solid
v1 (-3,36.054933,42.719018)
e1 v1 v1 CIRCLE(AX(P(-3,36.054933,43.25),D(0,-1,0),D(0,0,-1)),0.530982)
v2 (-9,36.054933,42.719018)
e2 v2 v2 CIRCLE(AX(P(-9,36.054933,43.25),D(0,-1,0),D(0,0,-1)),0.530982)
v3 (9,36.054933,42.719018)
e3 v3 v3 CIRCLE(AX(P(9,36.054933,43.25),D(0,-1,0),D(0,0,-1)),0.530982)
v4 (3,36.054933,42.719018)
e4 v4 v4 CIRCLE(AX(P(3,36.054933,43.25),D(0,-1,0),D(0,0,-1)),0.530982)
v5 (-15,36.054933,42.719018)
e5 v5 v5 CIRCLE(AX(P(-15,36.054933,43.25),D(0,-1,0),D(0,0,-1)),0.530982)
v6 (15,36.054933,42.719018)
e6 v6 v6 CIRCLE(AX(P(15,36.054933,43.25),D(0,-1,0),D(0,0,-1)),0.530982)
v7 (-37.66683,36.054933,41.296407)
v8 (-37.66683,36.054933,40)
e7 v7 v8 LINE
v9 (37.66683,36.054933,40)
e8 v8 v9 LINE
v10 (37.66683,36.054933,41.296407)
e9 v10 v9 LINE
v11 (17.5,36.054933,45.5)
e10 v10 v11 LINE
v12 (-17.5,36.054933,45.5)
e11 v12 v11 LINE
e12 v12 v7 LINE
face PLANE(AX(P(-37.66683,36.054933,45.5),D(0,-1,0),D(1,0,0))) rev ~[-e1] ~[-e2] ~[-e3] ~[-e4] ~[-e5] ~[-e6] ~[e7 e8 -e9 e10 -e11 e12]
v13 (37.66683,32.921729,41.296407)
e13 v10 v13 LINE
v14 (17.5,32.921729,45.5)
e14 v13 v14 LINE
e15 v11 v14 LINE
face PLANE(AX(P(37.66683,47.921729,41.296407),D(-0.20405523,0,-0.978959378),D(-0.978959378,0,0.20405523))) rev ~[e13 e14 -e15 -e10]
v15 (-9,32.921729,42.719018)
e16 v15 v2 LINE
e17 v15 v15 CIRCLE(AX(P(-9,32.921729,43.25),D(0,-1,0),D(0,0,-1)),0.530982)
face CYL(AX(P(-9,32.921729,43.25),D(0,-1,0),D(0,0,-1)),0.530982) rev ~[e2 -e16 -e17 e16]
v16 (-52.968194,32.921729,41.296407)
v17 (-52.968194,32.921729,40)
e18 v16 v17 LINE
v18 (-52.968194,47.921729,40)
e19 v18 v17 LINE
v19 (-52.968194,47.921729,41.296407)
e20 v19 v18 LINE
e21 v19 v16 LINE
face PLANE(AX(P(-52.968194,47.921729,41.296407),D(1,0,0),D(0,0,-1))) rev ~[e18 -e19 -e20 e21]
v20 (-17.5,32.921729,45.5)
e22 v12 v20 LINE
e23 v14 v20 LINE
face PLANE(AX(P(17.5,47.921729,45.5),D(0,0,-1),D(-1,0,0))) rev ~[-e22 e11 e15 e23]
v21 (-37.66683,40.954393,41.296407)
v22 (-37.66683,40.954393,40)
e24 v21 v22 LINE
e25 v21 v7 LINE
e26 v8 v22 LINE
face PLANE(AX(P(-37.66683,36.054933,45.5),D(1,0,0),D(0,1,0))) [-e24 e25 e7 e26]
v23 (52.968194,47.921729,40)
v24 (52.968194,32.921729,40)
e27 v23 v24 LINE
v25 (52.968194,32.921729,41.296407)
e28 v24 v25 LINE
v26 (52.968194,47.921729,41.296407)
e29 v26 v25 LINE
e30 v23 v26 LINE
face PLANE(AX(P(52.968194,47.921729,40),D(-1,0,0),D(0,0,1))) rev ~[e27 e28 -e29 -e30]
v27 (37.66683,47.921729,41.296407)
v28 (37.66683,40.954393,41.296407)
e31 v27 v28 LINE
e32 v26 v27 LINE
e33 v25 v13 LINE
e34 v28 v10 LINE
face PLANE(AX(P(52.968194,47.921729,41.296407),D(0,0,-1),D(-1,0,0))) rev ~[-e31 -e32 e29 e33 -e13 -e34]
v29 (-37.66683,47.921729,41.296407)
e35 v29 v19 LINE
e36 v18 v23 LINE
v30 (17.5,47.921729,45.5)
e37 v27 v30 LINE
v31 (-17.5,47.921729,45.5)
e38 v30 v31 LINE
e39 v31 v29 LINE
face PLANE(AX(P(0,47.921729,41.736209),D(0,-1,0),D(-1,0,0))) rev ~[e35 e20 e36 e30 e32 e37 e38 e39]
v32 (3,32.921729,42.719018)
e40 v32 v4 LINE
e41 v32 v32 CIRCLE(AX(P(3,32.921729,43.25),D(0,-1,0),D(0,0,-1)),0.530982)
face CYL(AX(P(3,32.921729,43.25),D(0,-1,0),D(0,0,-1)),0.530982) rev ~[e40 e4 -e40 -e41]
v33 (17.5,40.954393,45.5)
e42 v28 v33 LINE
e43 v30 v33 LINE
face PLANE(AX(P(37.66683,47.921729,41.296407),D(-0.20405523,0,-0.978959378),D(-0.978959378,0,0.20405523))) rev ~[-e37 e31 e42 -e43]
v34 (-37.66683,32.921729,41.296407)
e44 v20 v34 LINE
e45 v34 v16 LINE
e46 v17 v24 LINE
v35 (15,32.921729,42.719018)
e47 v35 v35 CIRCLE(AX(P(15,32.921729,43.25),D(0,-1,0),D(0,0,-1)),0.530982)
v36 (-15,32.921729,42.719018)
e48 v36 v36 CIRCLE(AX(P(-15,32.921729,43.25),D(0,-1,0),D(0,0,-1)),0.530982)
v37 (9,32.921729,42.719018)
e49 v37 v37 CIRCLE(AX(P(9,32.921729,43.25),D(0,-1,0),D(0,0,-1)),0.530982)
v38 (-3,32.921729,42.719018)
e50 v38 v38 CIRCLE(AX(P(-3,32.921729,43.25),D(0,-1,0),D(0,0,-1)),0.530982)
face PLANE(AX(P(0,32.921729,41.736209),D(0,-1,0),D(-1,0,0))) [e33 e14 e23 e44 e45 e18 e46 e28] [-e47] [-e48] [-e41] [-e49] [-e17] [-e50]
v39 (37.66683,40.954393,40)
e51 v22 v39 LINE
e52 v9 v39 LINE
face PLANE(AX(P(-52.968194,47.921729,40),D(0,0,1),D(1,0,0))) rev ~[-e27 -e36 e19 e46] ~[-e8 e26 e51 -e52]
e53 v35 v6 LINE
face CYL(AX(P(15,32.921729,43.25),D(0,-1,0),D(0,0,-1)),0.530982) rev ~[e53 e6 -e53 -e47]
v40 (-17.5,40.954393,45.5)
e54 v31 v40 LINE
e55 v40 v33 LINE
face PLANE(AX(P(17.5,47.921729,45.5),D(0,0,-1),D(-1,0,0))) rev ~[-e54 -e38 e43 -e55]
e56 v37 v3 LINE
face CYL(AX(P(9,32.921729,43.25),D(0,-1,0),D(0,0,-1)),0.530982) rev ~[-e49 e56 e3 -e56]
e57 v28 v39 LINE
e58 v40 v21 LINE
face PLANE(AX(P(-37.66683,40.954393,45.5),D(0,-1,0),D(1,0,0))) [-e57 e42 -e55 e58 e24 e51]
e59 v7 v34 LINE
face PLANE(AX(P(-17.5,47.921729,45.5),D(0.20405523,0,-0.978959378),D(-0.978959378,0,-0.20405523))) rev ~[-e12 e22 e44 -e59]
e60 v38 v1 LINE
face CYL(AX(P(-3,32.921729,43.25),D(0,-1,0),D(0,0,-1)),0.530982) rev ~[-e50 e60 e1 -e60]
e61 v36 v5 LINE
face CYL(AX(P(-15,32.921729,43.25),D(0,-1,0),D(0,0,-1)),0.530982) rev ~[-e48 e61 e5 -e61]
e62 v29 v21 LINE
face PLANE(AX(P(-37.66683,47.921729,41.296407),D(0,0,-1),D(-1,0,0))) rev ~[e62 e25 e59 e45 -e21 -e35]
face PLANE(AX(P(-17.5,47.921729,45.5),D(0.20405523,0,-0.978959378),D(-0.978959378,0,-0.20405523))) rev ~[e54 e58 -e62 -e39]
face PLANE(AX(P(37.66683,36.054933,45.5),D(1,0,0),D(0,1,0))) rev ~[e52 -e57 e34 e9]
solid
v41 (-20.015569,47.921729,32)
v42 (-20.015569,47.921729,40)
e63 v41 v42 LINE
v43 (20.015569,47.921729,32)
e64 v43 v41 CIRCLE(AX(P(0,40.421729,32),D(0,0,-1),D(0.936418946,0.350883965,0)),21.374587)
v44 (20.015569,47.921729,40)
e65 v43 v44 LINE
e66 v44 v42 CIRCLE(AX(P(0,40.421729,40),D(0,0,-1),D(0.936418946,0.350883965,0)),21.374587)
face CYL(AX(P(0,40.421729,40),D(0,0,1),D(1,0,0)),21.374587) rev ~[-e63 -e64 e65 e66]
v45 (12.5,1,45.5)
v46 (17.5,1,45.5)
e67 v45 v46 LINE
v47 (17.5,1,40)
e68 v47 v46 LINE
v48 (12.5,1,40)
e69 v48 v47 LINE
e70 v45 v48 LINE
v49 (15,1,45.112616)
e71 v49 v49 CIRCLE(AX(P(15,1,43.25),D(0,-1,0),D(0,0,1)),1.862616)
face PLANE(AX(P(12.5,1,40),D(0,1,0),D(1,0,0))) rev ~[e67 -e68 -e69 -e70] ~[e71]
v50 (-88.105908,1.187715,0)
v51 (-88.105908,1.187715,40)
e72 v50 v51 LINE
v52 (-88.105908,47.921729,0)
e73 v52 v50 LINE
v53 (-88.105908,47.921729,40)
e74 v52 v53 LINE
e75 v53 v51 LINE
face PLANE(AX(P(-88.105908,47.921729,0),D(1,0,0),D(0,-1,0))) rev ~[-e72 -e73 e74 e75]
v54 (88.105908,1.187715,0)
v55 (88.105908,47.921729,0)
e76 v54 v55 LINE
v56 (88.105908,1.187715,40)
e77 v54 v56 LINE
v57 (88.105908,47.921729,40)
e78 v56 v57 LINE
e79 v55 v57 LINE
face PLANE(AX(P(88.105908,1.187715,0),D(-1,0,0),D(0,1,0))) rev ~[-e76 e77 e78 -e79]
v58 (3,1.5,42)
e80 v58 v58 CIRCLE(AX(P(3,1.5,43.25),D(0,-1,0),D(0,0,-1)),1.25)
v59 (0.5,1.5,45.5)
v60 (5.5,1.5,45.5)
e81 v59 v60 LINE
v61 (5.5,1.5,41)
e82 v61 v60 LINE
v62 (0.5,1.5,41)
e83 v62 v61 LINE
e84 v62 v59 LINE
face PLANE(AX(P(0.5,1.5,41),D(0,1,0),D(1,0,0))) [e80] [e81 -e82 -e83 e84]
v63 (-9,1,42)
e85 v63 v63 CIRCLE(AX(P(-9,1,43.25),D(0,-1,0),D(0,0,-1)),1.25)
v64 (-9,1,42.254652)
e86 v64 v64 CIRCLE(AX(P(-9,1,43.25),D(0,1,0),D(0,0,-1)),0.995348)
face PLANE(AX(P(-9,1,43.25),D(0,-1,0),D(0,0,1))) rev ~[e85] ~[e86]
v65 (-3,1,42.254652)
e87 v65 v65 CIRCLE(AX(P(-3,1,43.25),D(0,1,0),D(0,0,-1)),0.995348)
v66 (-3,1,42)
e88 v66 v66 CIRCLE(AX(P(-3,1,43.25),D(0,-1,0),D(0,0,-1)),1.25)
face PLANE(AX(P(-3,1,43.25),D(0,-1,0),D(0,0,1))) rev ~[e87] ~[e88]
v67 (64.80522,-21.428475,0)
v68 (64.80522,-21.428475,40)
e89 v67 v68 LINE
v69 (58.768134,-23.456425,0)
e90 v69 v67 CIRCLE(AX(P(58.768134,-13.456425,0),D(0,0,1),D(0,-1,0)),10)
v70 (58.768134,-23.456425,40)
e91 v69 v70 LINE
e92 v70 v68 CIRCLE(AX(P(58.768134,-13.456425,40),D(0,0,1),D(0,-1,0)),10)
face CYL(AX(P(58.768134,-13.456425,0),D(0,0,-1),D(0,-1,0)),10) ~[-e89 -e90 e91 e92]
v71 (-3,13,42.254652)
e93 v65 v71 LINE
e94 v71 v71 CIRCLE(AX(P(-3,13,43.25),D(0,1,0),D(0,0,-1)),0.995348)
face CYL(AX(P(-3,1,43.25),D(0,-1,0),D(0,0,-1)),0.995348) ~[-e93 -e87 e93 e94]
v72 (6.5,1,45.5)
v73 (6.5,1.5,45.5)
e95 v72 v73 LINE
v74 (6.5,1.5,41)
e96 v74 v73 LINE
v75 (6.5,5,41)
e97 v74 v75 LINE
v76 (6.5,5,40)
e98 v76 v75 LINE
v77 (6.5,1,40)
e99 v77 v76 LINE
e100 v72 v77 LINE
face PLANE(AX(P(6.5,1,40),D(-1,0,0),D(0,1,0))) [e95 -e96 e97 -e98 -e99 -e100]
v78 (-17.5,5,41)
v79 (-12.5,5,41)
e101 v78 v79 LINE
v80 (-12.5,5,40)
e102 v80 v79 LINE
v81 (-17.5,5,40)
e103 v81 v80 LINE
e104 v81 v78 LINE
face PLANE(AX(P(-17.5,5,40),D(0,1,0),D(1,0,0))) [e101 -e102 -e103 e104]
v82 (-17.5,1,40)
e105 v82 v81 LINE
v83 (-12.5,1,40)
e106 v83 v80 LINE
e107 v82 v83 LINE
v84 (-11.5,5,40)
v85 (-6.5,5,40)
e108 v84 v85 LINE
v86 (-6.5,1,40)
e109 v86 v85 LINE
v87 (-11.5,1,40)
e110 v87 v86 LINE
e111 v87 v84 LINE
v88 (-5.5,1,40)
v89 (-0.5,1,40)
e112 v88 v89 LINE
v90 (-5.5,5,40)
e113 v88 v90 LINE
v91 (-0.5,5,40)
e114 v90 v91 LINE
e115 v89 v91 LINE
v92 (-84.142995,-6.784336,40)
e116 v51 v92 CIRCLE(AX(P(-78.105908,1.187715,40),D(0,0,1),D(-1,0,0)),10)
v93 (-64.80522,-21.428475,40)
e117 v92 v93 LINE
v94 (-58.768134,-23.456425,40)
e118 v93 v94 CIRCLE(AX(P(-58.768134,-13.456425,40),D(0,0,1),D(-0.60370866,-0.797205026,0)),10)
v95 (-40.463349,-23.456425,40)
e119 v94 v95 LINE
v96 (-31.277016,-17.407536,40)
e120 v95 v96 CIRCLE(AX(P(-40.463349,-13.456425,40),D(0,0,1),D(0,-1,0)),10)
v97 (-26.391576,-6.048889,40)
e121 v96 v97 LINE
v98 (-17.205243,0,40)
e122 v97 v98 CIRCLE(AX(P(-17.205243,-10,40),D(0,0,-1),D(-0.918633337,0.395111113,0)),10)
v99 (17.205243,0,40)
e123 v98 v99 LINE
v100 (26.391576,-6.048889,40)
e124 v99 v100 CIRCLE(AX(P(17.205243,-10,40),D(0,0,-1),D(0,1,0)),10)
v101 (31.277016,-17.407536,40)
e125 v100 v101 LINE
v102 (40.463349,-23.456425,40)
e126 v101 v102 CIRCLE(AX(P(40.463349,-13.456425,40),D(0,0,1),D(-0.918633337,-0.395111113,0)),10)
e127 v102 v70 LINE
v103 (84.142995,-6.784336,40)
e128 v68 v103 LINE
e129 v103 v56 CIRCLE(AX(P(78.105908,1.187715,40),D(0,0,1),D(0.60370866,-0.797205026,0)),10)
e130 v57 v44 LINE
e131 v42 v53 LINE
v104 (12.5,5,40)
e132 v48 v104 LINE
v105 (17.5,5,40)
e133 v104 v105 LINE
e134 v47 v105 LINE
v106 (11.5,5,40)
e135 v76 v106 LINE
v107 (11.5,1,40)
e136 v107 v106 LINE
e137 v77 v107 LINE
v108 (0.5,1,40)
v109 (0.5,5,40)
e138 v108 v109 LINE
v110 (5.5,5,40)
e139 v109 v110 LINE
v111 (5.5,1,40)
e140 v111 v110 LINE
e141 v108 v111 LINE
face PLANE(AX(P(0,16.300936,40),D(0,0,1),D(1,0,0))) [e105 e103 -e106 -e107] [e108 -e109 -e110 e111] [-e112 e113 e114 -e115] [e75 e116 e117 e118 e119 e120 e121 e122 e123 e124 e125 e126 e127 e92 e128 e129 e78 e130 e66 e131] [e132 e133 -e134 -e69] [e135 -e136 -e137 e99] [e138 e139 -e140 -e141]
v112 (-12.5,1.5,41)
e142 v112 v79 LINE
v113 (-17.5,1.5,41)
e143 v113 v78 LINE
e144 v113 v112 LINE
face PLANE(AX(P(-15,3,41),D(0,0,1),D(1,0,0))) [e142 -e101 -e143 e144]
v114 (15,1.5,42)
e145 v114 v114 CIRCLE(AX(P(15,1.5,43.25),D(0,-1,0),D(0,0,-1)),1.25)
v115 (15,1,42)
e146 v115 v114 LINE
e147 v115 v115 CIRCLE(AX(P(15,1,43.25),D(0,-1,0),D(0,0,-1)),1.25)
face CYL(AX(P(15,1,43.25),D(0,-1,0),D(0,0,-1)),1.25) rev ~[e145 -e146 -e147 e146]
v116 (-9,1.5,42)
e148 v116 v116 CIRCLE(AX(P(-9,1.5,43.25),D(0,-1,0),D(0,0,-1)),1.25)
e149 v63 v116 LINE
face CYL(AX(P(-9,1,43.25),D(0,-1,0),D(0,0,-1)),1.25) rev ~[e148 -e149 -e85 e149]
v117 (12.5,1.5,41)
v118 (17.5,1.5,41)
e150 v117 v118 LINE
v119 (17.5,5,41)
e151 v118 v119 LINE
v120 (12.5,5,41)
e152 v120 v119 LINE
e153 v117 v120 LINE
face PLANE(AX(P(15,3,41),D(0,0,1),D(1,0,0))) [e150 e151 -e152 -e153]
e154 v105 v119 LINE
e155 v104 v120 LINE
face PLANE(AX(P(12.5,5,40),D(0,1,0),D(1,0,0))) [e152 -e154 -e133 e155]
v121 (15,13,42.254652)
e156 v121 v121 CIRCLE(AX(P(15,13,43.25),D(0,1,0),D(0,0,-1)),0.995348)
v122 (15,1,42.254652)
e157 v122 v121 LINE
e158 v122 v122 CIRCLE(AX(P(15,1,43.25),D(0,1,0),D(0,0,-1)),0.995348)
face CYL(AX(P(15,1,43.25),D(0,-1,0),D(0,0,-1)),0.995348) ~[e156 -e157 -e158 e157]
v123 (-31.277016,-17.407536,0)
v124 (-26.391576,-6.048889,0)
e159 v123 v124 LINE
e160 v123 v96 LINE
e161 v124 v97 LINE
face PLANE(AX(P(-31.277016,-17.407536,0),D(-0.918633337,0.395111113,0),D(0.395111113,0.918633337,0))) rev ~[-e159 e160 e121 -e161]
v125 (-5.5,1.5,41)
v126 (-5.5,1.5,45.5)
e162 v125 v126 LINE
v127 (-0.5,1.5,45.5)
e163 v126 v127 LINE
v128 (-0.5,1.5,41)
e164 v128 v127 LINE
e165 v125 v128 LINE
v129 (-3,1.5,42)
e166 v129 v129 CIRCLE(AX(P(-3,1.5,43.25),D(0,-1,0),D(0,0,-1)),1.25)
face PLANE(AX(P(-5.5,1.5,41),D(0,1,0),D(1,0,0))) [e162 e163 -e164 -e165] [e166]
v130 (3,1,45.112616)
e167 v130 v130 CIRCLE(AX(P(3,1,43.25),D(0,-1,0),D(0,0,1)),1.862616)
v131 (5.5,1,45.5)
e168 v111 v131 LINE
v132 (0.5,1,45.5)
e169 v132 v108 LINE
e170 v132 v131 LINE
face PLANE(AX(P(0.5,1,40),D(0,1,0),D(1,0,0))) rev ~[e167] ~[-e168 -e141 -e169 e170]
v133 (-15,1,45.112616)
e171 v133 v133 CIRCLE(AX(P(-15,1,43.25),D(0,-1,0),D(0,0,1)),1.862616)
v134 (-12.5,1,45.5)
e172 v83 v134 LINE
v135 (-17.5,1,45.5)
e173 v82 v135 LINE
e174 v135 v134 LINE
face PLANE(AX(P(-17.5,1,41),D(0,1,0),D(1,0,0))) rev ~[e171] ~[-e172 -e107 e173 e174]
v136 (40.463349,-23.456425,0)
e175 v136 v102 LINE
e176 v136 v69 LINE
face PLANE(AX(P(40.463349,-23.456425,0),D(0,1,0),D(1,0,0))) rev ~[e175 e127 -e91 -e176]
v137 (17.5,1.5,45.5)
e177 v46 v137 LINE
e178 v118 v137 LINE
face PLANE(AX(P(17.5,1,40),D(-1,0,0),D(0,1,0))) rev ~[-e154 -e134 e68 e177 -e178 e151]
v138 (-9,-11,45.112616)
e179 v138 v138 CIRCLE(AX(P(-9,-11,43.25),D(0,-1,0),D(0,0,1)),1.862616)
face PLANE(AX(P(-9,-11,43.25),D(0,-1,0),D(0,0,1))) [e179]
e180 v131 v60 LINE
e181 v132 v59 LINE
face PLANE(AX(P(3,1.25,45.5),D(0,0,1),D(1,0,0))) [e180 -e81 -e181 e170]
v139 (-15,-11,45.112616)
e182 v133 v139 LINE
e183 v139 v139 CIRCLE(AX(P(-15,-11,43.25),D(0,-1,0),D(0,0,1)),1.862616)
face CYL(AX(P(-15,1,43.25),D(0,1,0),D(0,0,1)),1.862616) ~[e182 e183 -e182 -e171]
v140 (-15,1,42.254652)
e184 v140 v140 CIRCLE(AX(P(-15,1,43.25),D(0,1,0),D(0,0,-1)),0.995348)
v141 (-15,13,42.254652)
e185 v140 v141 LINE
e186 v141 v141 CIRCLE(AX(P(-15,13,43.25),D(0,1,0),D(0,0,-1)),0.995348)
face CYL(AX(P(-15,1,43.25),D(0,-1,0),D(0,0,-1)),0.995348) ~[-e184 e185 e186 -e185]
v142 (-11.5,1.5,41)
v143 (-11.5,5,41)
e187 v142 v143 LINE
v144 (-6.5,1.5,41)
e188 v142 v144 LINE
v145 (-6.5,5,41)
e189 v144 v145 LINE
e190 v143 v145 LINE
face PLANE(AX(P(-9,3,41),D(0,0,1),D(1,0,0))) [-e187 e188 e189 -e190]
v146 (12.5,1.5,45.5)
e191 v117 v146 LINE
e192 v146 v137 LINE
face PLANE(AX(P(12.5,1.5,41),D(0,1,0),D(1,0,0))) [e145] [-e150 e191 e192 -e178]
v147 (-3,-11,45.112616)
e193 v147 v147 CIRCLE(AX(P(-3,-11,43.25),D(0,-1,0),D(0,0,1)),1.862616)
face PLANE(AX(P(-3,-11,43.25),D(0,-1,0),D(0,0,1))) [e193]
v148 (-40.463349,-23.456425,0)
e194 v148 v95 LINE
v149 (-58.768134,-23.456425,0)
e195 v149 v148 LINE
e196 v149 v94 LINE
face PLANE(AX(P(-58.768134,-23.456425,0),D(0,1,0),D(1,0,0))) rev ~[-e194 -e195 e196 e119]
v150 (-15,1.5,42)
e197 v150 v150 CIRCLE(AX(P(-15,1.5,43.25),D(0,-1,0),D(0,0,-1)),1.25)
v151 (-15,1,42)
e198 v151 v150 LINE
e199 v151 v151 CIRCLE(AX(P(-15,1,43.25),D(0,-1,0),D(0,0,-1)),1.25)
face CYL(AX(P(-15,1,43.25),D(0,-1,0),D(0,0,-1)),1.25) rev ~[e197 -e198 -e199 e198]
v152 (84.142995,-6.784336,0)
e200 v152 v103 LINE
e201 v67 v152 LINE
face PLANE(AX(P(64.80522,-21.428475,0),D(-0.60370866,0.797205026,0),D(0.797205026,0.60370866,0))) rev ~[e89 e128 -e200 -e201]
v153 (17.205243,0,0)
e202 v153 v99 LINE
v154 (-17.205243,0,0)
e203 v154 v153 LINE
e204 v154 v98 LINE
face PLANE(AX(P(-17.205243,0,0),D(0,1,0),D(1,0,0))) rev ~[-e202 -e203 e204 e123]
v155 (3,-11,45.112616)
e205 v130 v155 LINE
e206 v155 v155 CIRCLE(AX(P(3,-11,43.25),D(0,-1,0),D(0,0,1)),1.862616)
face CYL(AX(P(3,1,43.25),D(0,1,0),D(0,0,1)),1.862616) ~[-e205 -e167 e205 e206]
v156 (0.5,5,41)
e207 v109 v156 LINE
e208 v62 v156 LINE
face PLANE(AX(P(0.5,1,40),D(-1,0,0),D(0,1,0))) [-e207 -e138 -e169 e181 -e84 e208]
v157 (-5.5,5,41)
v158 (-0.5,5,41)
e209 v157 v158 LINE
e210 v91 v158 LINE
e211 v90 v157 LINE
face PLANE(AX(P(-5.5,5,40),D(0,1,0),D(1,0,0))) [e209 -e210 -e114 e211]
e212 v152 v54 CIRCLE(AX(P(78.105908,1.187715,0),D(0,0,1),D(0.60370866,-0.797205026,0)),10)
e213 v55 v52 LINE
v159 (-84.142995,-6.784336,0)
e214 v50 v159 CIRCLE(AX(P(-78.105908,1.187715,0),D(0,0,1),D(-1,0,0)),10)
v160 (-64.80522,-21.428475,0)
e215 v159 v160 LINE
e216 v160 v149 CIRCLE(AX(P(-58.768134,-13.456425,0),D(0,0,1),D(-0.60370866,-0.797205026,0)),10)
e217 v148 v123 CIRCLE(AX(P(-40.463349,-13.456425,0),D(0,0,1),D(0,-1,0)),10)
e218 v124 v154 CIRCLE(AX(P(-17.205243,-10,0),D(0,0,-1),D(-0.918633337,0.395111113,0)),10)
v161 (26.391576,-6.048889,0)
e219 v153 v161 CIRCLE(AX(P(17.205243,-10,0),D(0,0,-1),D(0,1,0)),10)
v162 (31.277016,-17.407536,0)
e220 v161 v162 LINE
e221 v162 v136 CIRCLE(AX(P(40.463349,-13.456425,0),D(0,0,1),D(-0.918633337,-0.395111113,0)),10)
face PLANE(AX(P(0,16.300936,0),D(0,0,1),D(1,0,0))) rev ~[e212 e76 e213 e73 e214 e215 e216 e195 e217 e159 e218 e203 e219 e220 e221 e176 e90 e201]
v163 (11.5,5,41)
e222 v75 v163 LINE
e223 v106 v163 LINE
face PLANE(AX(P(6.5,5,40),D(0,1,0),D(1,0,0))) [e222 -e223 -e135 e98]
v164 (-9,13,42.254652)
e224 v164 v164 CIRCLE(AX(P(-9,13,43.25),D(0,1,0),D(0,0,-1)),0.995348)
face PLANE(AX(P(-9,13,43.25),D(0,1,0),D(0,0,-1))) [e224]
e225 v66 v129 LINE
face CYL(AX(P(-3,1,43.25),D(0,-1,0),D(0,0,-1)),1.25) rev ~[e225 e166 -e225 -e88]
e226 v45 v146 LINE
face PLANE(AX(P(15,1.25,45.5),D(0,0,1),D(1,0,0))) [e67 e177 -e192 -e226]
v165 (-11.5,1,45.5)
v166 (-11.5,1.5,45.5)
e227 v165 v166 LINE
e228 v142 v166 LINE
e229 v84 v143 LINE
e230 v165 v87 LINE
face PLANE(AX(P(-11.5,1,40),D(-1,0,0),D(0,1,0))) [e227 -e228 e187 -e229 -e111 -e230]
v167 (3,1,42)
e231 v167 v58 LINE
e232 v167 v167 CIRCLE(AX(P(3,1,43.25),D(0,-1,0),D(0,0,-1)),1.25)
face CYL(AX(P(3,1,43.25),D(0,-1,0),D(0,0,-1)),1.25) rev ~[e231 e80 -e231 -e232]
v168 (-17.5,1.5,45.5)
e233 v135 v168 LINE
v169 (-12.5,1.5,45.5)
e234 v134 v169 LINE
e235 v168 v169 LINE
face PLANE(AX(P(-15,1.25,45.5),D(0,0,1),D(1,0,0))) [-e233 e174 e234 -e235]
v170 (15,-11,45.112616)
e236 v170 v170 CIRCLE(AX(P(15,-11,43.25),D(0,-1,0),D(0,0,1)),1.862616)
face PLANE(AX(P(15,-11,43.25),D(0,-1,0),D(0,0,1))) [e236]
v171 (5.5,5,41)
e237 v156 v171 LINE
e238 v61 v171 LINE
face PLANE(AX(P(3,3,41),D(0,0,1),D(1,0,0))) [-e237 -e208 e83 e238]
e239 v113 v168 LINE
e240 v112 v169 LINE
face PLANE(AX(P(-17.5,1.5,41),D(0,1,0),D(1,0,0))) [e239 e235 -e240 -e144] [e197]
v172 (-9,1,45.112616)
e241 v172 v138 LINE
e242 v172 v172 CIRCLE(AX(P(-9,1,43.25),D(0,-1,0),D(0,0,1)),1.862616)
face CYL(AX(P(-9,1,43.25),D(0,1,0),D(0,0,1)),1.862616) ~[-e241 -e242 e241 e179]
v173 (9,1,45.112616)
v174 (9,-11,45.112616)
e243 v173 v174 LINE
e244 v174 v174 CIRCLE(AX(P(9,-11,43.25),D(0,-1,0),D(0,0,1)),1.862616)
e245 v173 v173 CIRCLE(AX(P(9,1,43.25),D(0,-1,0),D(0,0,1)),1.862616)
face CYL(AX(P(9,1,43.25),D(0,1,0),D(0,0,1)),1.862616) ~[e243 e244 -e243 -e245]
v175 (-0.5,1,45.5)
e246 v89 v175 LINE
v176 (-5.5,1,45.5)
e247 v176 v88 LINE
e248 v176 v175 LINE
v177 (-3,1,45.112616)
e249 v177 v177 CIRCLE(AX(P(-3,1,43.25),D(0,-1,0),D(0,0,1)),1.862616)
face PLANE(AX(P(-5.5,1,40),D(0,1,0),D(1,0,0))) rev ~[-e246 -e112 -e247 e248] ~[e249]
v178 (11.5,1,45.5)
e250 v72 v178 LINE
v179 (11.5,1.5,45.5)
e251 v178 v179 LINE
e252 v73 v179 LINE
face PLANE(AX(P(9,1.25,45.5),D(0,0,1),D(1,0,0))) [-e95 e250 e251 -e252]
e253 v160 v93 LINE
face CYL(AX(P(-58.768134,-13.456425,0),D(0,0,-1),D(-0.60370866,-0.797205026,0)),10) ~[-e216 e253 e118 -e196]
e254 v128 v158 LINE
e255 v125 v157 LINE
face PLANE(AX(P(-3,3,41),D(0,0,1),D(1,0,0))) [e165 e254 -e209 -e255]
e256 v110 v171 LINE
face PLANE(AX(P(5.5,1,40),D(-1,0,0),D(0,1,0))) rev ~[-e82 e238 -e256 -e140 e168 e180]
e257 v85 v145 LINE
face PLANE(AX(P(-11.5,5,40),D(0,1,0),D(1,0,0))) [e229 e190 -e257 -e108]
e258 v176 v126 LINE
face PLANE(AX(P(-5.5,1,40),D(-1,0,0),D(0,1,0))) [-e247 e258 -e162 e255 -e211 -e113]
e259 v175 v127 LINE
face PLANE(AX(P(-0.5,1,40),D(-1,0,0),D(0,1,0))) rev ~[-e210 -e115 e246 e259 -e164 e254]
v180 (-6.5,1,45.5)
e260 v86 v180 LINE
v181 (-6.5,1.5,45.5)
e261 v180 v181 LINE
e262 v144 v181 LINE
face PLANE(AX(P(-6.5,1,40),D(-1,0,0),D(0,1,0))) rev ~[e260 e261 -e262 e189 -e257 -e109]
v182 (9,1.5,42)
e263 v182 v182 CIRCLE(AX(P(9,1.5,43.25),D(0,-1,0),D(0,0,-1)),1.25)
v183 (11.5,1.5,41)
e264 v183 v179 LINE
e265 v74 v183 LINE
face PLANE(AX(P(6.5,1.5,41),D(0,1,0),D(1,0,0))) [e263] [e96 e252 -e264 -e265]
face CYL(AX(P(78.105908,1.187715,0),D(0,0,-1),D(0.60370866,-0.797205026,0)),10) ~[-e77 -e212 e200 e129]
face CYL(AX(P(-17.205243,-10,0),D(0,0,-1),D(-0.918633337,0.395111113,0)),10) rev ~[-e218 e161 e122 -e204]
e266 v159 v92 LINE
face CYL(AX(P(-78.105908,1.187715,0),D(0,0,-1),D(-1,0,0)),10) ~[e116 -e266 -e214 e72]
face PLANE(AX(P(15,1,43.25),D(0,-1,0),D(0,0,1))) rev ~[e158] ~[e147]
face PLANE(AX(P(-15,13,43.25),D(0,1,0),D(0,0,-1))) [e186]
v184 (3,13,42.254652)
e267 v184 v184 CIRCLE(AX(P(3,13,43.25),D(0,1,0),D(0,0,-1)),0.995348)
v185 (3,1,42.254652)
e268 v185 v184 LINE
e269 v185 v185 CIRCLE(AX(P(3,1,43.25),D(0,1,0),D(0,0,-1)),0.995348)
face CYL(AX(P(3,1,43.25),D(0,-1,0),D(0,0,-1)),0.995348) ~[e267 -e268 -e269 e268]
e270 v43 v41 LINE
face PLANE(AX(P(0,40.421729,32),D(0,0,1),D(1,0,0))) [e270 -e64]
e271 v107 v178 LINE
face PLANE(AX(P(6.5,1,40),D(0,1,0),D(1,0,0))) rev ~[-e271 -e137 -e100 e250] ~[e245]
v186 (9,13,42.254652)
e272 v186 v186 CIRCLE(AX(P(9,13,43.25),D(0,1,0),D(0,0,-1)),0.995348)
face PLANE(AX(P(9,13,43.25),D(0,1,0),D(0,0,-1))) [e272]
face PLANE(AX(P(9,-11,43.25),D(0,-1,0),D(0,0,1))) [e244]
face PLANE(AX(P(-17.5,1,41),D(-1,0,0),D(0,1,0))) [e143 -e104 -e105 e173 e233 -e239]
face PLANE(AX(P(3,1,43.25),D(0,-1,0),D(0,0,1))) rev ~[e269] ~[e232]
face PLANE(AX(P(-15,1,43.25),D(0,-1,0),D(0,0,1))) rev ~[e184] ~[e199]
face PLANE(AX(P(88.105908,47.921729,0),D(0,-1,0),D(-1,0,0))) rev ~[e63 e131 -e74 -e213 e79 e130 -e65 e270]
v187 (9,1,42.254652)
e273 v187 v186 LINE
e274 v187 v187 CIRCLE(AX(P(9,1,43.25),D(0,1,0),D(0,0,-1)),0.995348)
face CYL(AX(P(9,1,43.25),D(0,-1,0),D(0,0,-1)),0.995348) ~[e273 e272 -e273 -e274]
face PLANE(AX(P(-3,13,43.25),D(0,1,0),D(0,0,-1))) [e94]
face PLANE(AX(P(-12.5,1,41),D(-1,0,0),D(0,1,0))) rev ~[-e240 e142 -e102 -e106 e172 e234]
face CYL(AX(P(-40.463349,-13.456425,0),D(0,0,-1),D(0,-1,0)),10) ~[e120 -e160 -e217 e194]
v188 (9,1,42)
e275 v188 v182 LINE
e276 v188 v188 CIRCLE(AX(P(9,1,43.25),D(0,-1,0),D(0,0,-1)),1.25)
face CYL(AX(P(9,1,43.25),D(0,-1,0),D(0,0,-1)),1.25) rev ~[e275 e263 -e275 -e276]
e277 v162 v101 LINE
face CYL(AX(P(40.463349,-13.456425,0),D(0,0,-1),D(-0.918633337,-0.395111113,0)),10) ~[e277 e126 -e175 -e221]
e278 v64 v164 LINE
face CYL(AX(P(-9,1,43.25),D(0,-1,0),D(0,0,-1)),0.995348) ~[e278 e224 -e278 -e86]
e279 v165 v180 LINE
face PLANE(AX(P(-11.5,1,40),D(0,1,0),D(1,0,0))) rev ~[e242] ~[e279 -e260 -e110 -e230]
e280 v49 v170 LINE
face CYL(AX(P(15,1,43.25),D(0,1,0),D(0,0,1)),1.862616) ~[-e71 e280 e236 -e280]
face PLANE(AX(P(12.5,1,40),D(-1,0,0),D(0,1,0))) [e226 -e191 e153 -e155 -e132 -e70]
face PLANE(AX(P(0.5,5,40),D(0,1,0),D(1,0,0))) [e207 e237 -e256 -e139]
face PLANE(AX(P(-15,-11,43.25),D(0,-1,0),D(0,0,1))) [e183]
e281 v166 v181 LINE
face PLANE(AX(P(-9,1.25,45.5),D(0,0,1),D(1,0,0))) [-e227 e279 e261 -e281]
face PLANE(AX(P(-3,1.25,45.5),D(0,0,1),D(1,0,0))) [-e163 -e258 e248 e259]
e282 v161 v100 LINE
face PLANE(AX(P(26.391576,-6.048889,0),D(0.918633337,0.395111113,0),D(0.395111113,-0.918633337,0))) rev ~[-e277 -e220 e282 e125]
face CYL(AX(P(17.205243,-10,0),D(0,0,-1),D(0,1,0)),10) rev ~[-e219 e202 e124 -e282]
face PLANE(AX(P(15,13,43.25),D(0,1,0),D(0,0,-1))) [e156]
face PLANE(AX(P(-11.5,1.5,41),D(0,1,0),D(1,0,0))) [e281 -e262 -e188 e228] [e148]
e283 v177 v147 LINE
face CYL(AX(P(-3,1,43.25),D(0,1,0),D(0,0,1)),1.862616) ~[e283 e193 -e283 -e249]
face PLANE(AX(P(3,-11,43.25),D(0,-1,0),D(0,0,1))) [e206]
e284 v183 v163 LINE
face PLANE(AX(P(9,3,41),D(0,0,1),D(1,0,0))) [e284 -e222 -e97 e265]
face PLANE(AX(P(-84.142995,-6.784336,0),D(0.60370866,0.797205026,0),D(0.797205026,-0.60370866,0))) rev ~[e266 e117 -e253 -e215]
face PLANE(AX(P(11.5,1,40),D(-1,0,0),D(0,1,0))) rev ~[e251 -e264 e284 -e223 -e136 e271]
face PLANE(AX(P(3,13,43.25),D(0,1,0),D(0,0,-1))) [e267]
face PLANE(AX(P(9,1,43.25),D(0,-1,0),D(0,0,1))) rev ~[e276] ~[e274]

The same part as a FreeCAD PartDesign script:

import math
import FreeCAD as App
import Part
import Sketcher
from FreeCAD import Vector
Q = App.Units.Quantity


def add_polygon(sketch, points):
    """Adds a closed chain of lines whose ends are joined by coincident constraints."""
    first, n = sketch.GeometryCount, len(points)
    for a, b in zip(points, points[1:] + points[:1]):
        sketch.addGeometry(Part.LineSegment(App.Vector(*a, 0), App.Vector(*b, 0)), False)
    for i in range(n):
        sketch.addConstraint(Sketcher.Constraint("Coincident", first + i, 2, first + (i + 1) % n, 1))

doc = App.newDocument("Part")
body = doc.addObject("PartDesign::Body", "Body")

# Sketch on XY plane
sketch1 = body.newObject("Sketcher::SketchObject", "Sketch")
sketch1.AttachmentSupport = (doc.getObject("XY_Plane"), [""])
sketch1.MapMode = "FlatFace"
sketch1.addGeometry(Part.LineSegment(Vector(-17, 0, 0), Vector(17, 0, 0)), False)
sketch1.addGeometry(Part.ArcOfCircle(Part.Circle(Vector(17, -10, 0), Vector(0, 0, 1), 10), math.radians(23), math.radians(90)), False)
sketch1.addGeometry(Part.LineSegment(Vector(26, -6, 0), Vector(31, -17, 0)), False)
sketch1.addGeometry(Part.ArcOfCircle(Part.Circle(Vector(40, -13, 0), Vector(0, 0, 1), 10), math.radians(-157), math.radians(-90)), False)
sketch1.addGeometry(Part.LineSegment(Vector(40, -23, 0), Vector(59, -23, 0)), False)
sketch1.addGeometry(Part.ArcOfCircle(Part.Circle(Vector(59, -13, 0), Vector(0, 0, 1), 10), math.radians(-90), math.radians(-53)), False)
sketch1.addGeometry(Part.LineSegment(Vector(65, -21, 0), Vector(84, -7, 0)), False)
sketch1.addGeometry(Part.ArcOfCircle(Part.Circle(Vector(78, 1, 0), Vector(0, 0, 1), 10), math.radians(-53), math.radians(0)), False)
sketch1.addGeometry(Part.LineSegment(Vector(88, 1, 0), Vector(88, 48, 0)), False)
sketch1.addGeometry(Part.LineSegment(Vector(88, 48, 0), Vector(-88, 48, 0)), False)
sketch1.addGeometry(Part.LineSegment(Vector(-88, 48, 0), Vector(-88, 1, 0)), False)
sketch1.addGeometry(Part.ArcOfCircle(Part.Circle(Vector(-78, 1, 0), Vector(0, 0, 1), 10), math.radians(180), math.radians(233)), False)
sketch1.addGeometry(Part.LineSegment(Vector(-84, -7, 0), Vector(-65, -21, 0)), False)
sketch1.addGeometry(Part.ArcOfCircle(Part.Circle(Vector(-59, -13, 0), Vector(0, 0, 1), 10), math.radians(-127), math.radians(-90)), False)
sketch1.addGeometry(Part.LineSegment(Vector(-59, -23, 0), Vector(-40, -23, 0)), False)
sketch1.addGeometry(Part.ArcOfCircle(Part.Circle(Vector(-40, -13, 0), Vector(0, 0, 1), 10), math.radians(-90), math.radians(-23)), False)
sketch1.addGeometry(Part.LineSegment(Vector(-31, -17, 0), Vector(-26, -6, 0)), False)
sketch1.addGeometry(Part.ArcOfCircle(Part.Circle(Vector(-17, -10, 0), Vector(0, 0, 1), 10), math.radians(90), math.radians(157)), False)
sketch1.addConstraint(Sketcher.Constraint("Tangent", 0, 2, 1, 2))
sketch1.addConstraint(Sketcher.Constraint("Tangent", 1, 1, 2, 1))
sketch1.addConstraint(Sketcher.Constraint("Tangent", 2, 2, 3, 1))
sketch1.addConstraint(Sketcher.Constraint("Tangent", 3, 2, 4, 1))
sketch1.addConstraint(Sketcher.Constraint("Tangent", 4, 2, 5, 1))
sketch1.addConstraint(Sketcher.Constraint("Tangent", 5, 2, 6, 1))
sketch1.addConstraint(Sketcher.Constraint("Tangent", 6, 2, 7, 1))
sketch1.addConstraint(Sketcher.Constraint("Tangent", 7, 2, 8, 1))
sketch1.addConstraint(Sketcher.Constraint("Coincident", 8, 2, 9, 1))
sketch1.addConstraint(Sketcher.Constraint("Coincident", 9, 2, 10, 1))
sketch1.addConstraint(Sketcher.Constraint("Tangent", 10, 2, 11, 1))
sketch1.addConstraint(Sketcher.Constraint("Tangent", 11, 2, 12, 1))
sketch1.addConstraint(Sketcher.Constraint("Tangent", 12, 2, 13, 1))
sketch1.addConstraint(Sketcher.Constraint("Tangent", 13, 2, 14, 1))
sketch1.addConstraint(Sketcher.Constraint("Tangent", 14, 2, 15, 1))
sketch1.addConstraint(Sketcher.Constraint("Tangent", 15, 2, 16, 1))
sketch1.addConstraint(Sketcher.Constraint("Tangent", 16, 2, 17, 2))
sketch1.addConstraint(Sketcher.Constraint("Tangent", 17, 1, 0, 1))
sketch1.addConstraint(Sketcher.Constraint("Horizontal", 0))
sketch1.addConstraint(Sketcher.Constraint("Horizontal", 4))
sketch1.addConstraint(Sketcher.Constraint("Vertical", 8))
sketch1.addConstraint(Sketcher.Constraint("Horizontal", 9))
sketch1.addConstraint(Sketcher.Constraint("Vertical", 10))
sketch1.addConstraint(Sketcher.Constraint("Horizontal", 14))
sketch1.addConstraint(Sketcher.Constraint("Equal", 1, 3))
sketch1.addConstraint(Sketcher.Constraint("Equal", 3, 5))
sketch1.addConstraint(Sketcher.Constraint("Equal", 5, 7))
sketch1.addConstraint(Sketcher.Constraint("Equal", 7, 11))
sketch1.addConstraint(Sketcher.Constraint("Equal", 11, 13))
sketch1.addConstraint(Sketcher.Constraint("Equal", 13, 15))
sketch1.addConstraint(Sketcher.Constraint("Equal", 15, 17))
sketch1.addConstraint(Sketcher.Constraint("Symmetric", 0, 2, 17, 1, -1, 1))
sketch1.addConstraint(Sketcher.Constraint("Symmetric", 7, 3, 11, 3, -2))
sketch1.addConstraint(Sketcher.Constraint("Symmetric", 5, 3, 13, 3, -2))
sketch1.addConstraint(Sketcher.Constraint("Horizontal", 2, 2, 15, 2))
sketch1.addConstraint(Sketcher.Constraint("Radius", 1, Q("10 mm")))
sketch1.addConstraint(Sketcher.Constraint("DistanceX", 15, 3, 3, 3, Q("80.926698 mm")))
sketch1.addConstraint(Sketcher.Constraint("DistanceX", 0, 1, 0, 2, Q("34.410485 mm")))
sketch1.addConstraint(Sketcher.Constraint("DistanceX", 4, 1, 4, 2, Q("18.304784 mm")))
sketch1.addConstraint(Sketcher.Constraint("DistanceX", 9, 2, 9, 1, Q("176.211816 mm")))
sketch1.addConstraint(Sketcher.Constraint("DistanceY", 8, 1, 8, 2, Q("46.734014 mm")))
sketch1.addConstraint(Sketcher.Constraint("DistanceY", 1, 1, -1, 1, Q("6.048889 mm")))
sketch1.addConstraint(Sketcher.Constraint("DistanceX", -1, 1, 5, 2, Q("64.80522 mm")))
pad1 = body.newObject("PartDesign::Pad", "Pad")
pad1.Profile = sketch1
pad1.Length = 40

# Sketch on XY plane
sketch2 = body.newObject("Sketcher::SketchObject", "Sketch001")
sketch2.AttachmentSupport = (doc.getObject("XY_Plane"), [""])
sketch2.MapMode = "FlatFace"
sketch2.AttachmentOffset = App.Placement(Vector(0, 0, 40), App.Rotation())
add_polygon(sketch2, [(-17.5, 5), (-17.5, 1), (-12.5, 1), (-12.5, 5)])  # lines 0-3
add_polygon(sketch2, [(-11.5, 5), (-11.5, 1), (-6.5, 1), (-6.5, 5)])  # lines 4-7
add_polygon(sketch2, [(-5.5, 5), (-5.5, 1), (-0.5, 1), (-0.5, 5)])  # lines 8-11
add_polygon(sketch2, [(0.5, 5), (0.5, 1), (5.5, 1), (5.5, 5)])  # lines 12-15
add_polygon(sketch2, [(6.5, 5), (6.5, 1), (11.5, 1), (11.5, 5)])  # lines 16-19
add_polygon(sketch2, [(12.5, 5), (12.5, 1), (17.5, 1), (17.5, 5)])  # lines 20-23
sketch2.addConstraint(Sketcher.Constraint("Vertical", 0))
sketch2.addConstraint(Sketcher.Constraint("Horizontal", 1))
sketch2.addConstraint(Sketcher.Constraint("Vertical", 2))
sketch2.addConstraint(Sketcher.Constraint("Horizontal", 3))
sketch2.addConstraint(Sketcher.Constraint("Vertical", 4))
sketch2.addConstraint(Sketcher.Constraint("Horizontal", 5))
sketch2.addConstraint(Sketcher.Constraint("Vertical", 6))
sketch2.addConstraint(Sketcher.Constraint("Horizontal", 7))
sketch2.addConstraint(Sketcher.Constraint("Vertical", 8))
sketch2.addConstraint(Sketcher.Constraint("Horizontal", 9))
sketch2.addConstraint(Sketcher.Constraint("Vertical", 10))
sketch2.addConstraint(Sketcher.Constraint("Horizontal", 11))
sketch2.addConstraint(Sketcher.Constraint("Vertical", 12))
sketch2.addConstraint(Sketcher.Constraint("Horizontal", 13))
sketch2.addConstraint(Sketcher.Constraint("Vertical", 14))
sketch2.addConstraint(Sketcher.Constraint("Horizontal", 15))
sketch2.addConstraint(Sketcher.Constraint("Vertical", 16))
sketch2.addConstraint(Sketcher.Constraint("Horizontal", 17))
sketch2.addConstraint(Sketcher.Constraint("Vertical", 18))
sketch2.addConstraint(Sketcher.Constraint("Horizontal", 19))
sketch2.addConstraint(Sketcher.Constraint("Vertical", 20))
sketch2.addConstraint(Sketcher.Constraint("Horizontal", 21))
sketch2.addConstraint(Sketcher.Constraint("Vertical", 22))
sketch2.addConstraint(Sketcher.Constraint("Horizontal", 23))
sketch2.addConstraint(Sketcher.Constraint("Symmetric", 9, 2, 12, 2, -2))
sketch2.addConstraint(Sketcher.Constraint("Symmetric", 11, 2, 14, 2, -2))
sketch2.addConstraint(Sketcher.Constraint("Symmetric", 5, 2, 16, 2, -2))
sketch2.addConstraint(Sketcher.Constraint("Symmetric", 7, 2, 18, 2, -2))
sketch2.addConstraint(Sketcher.Constraint("Symmetric", 1, 2, 20, 2, -2))
sketch2.addConstraint(Sketcher.Constraint("Symmetric", 3, 2, 22, 2, -2))
sketch2.addConstraint(Sketcher.Constraint("Horizontal", 1, 2, 4, 2))
sketch2.addConstraint(Sketcher.Constraint("Horizontal", 3, 2, 6, 2))
sketch2.addConstraint(Sketcher.Constraint("Horizontal", 5, 2, 8, 2))
sketch2.addConstraint(Sketcher.Constraint("Horizontal", 7, 2, 10, 2))
sketch2.addConstraint(Sketcher.Constraint("Equal", 3, 5))
sketch2.addConstraint(Sketcher.Constraint("Equal", 7, 9))
sketch2.addConstraint(Sketcher.Constraint("DistanceX", 1, 1, 1, 2, Q("5 mm")))
sketch2.addConstraint(Sketcher.Constraint("DistanceY", 0, 2, 0, 1, Q("4 mm")))
sketch2.addConstraint(Sketcher.Constraint("DistanceY", -1, 1, 0, 2, Q("1 mm")))
sketch2.addConstraint(Sketcher.Constraint("DistanceX", 1, 2, 4, 2, Q("1 mm")))
sketch2.addConstraint(Sketcher.Constraint("DistanceX", 5, 2, 8, 2, Q("1 mm")))
sketch2.addConstraint(Sketcher.Constraint("DistanceX", 9, 2, 12, 2, Q("1 mm")))
pad2 = body.newObject("PartDesign::Pad", "Pad001")
pad2.Profile = sketch2
pad2.Length = 1

# Sketch on XY plane
sketch3 = body.newObject("Sketcher::SketchObject", "Sketch002")
sketch3.AttachmentSupport = (doc.getObject("XY_Plane"), [""])
sketch3.MapMode = "FlatFace"
sketch3.AttachmentOffset = App.Placement(Vector(0, 0, 41), App.Rotation())
add_polygon(sketch3, [(-17.5, 1.5), (-17.5, 1), (-12.5, 1), (-12.5, 1.5)])  # lines 0-3
add_polygon(sketch3, [(-11.5, 1.5), (-11.5, 1), (-6.5, 1), (-6.5, 1.5)])  # lines 4-7
add_polygon(sketch3, [(-5.5, 1.5), (-5.5, 1), (-0.5, 1), (-0.5, 1.5)])  # lines 8-11
add_polygon(sketch3, [(0.5, 1.5), (0.5, 1), (5.5, 1), (5.5, 1.5)])  # lines 12-15
add_polygon(sketch3, [(6.5, 1.5), (6.5, 1), (11.5, 1), (11.5, 1.5)])  # lines 16-19
add_polygon(sketch3, [(12.5, 1.5), (12.5, 1), (17.5, 1), (17.5, 1.5)])  # lines 20-23
sketch3.addConstraint(Sketcher.Constraint("Vertical", 0))
sketch3.addConstraint(Sketcher.Constraint("Horizontal", 1))
sketch3.addConstraint(Sketcher.Constraint("Vertical", 2))
sketch3.addConstraint(Sketcher.Constraint("Horizontal", 3))
sketch3.addConstraint(Sketcher.Constraint("Vertical", 4))
sketch3.addConstraint(Sketcher.Constraint("Horizontal", 5))
sketch3.addConstraint(Sketcher.Constraint("Vertical", 6))
sketch3.addConstraint(Sketcher.Constraint("Horizontal", 7))
sketch3.addConstraint(Sketcher.Constraint("Vertical", 8))
sketch3.addConstraint(Sketcher.Constraint("Horizontal", 9))
sketch3.addConstraint(Sketcher.Constraint("Vertical", 10))
sketch3.addConstraint(Sketcher.Constraint("Horizontal", 11))
sketch3.addConstraint(Sketcher.Constraint("Vertical", 12))
sketch3.addConstraint(Sketcher.Constraint("Horizontal", 13))
sketch3.addConstraint(Sketcher.Constraint("Vertical", 14))
sketch3.addConstraint(Sketcher.Constraint("Horizontal", 15))
sketch3.addConstraint(Sketcher.Constraint("Vertical", 16))
sketch3.addConstraint(Sketcher.Constraint("Horizontal", 17))
sketch3.addConstraint(Sketcher.Constraint("Vertical", 18))
sketch3.addConstraint(Sketcher.Constraint("Horizontal", 19))
sketch3.addConstraint(Sketcher.Constraint("Vertical", 20))
sketch3.addConstraint(Sketcher.Constraint("Horizontal", 21))
sketch3.addConstraint(Sketcher.Constraint("Vertical", 22))
sketch3.addConstraint(Sketcher.Constraint("Horizontal", 23))
sketch3.addConstraint(Sketcher.Constraint("Symmetric", 9, 2, 12, 2, -2))
sketch3.addConstraint(Sketcher.Constraint("Symmetric", 11, 2, 14, 2, -2))
sketch3.addConstraint(Sketcher.Constraint("Symmetric", 5, 2, 16, 2, -2))
sketch3.addConstraint(Sketcher.Constraint("Symmetric", 7, 2, 18, 2, -2))
sketch3.addConstraint(Sketcher.Constraint("Symmetric", 1, 2, 20, 2, -2))
sketch3.addConstraint(Sketcher.Constraint("Symmetric", 3, 2, 22, 2, -2))
sketch3.addConstraint(Sketcher.Constraint("Horizontal", 1, 2, 4, 2))
sketch3.addConstraint(Sketcher.Constraint("Horizontal", 3, 2, 6, 2))
sketch3.addConstraint(Sketcher.Constraint("Horizontal", 5, 2, 8, 2))
sketch3.addConstraint(Sketcher.Constraint("Horizontal", 7, 2, 10, 2))
sketch3.addConstraint(Sketcher.Constraint("Equal", 3, 5))
sketch3.addConstraint(Sketcher.Constraint("Equal", 7, 9))
sketch3.addConstraint(Sketcher.Constraint("DistanceX", 1, 1, 1, 2, Q("5 mm")))
sketch3.addConstraint(Sketcher.Constraint("DistanceY", 0, 2, 0, 1, Q("0.5 mm")))
sketch3.addConstraint(Sketcher.Constraint("DistanceY", -1, 1, 0, 2, Q("1 mm")))
sketch3.addConstraint(Sketcher.Constraint("DistanceX", 1, 2, 4, 2, Q("1 mm")))
sketch3.addConstraint(Sketcher.Constraint("DistanceX", 5, 2, 8, 2, Q("1 mm")))
sketch3.addConstraint(Sketcher.Constraint("DistanceX", 9, 2, 12, 2, Q("1 mm")))
pad3 = body.newObject("PartDesign::Pad", "Pad002")
pad3.Profile = sketch3
pad3.Length = 4.5

# Sketch on XZ plane
sketch4 = body.newObject("Sketcher::SketchObject", "Sketch003")
sketch4.AttachmentSupport = (doc.getObject("XZ_Plane"), [""])
sketch4.MapMode = "FlatFace"
sketch4.AttachmentOffset = App.Placement(Vector(0, 0, -1), App.Rotation())
sketch4.addGeometry(Part.Circle(Vector(15, 43.2, 0), Vector(0, 0, 1), 1.2), False)
sketch4.addGeometry(Part.Circle(Vector(9, 43.2, 0), Vector(0, 0, 1), 1.2), False)
sketch4.addGeometry(Part.Circle(Vector(3, 43.2, 0), Vector(0, 0, 1), 1.2), False)
sketch4.addGeometry(Part.Circle(Vector(-3, 43.2, 0), Vector(0, 0, 1), 1.2), False)
sketch4.addGeometry(Part.Circle(Vector(-9, 43.2, 0), Vector(0, 0, 1), 1.2), False)
sketch4.addGeometry(Part.Circle(Vector(-15, 43.2, 0), Vector(0, 0, 1), 1.2), False)
sketch4.addConstraint(Sketcher.Constraint("Equal", 0, 1))
sketch4.addConstraint(Sketcher.Constraint("Equal", 1, 2))
sketch4.addConstraint(Sketcher.Constraint("Equal", 2, 3))
sketch4.addConstraint(Sketcher.Constraint("Equal", 3, 4))
sketch4.addConstraint(Sketcher.Constraint("Equal", 4, 5))
sketch4.addConstraint(Sketcher.Constraint("Symmetric", 2, 3, 3, 3, -2))
sketch4.addConstraint(Sketcher.Constraint("Symmetric", 1, 3, 4, 3, -2))
sketch4.addConstraint(Sketcher.Constraint("Symmetric", 0, 3, 5, 3, -2))
sketch4.addConstraint(Sketcher.Constraint("Horizontal", 0, 3, 1, 3))
sketch4.addConstraint(Sketcher.Constraint("Horizontal", 1, 3, 2, 3))
sketch4.addConstraint(Sketcher.Constraint("Diameter", 0, Q("2.5 mm")))
sketch4.addConstraint(Sketcher.Constraint("DistanceX", -1, 1, 0, 3, Q("15 mm")))
sketch4.addConstraint(Sketcher.Constraint("DistanceX", -1, 1, 1, 3, Q("9 mm")))
sketch4.addConstraint(Sketcher.Constraint("DistanceX", -1, 1, 2, 3, Q("3 mm")))
sketch4.addConstraint(Sketcher.Constraint("DistanceY", -1, 1, 0, 3, Q("43.25 mm")))
pocket1 = body.newObject("PartDesign::Pocket", "Pocket")
pocket1.Profile = sketch4
pocket1.Length = 4

# Sketch on XY plane
sketch5 = body.newObject("Sketcher::SketchObject", "Sketch004")
sketch5.AttachmentSupport = (doc.getObject("XY_Plane"), [""])
sketch5.MapMode = "FlatFace"
sketch5.AttachmentOffset = App.Placement(Vector(0, 0, 40), App.Rotation())
sketch5.addGeometry(Part.Circle(Vector(0, 40, 0), Vector(0, 0, 1), 21), False)
sketch5.addConstraint(Sketcher.Constraint("PointOnObject", 0, 3, -2))
sketch5.addConstraint(Sketcher.Constraint("Diameter", 0, Q("42.749175 mm")))
sketch5.addConstraint(Sketcher.Constraint("DistanceY", -1, 1, 0, 3, Q("40.421729 mm")))
pocket2 = body.newObject("PartDesign::Pocket", "Pocket001")
pocket2.Profile = sketch5
pocket2.Length = 8

# Sketch on XZ plane
sketch6 = body.newObject("Sketcher::SketchObject", "Sketch005")
sketch6.AttachmentSupport = (doc.getObject("XZ_Plane"), [""])
sketch6.MapMode = "FlatFace"
sketch6.AttachmentOffset = App.Placement(Vector(0, 0, -1), App.Rotation())
sketch6.addGeometry(Part.Circle(Vector(15, 43.2, 0), Vector(0, 0, 1), 1.9), False)
sketch6.addGeometry(Part.Circle(Vector(9, 43.2, 0), Vector(0, 0, 1), 1.9), False)
sketch6.addGeometry(Part.Circle(Vector(3, 43.2, 0), Vector(0, 0, 1), 1.9), False)
sketch6.addGeometry(Part.Circle(Vector(-3, 43.2, 0), Vector(0, 0, 1), 1.9), False)
sketch6.addGeometry(Part.Circle(Vector(-9, 43.2, 0), Vector(0, 0, 1), 1.9), False)
sketch6.addGeometry(Part.Circle(Vector(-15, 43.2, 0), Vector(0, 0, 1), 1.9), False)
sketch6.addConstraint(Sketcher.Constraint("Equal", 0, 1))
sketch6.addConstraint(Sketcher.Constraint("Equal", 1, 2))
sketch6.addConstraint(Sketcher.Constraint("Equal", 2, 3))
sketch6.addConstraint(Sketcher.Constraint("Equal", 3, 4))
sketch6.addConstraint(Sketcher.Constraint("Equal", 4, 5))
sketch6.addConstraint(Sketcher.Constraint("Symmetric", 2, 3, 3, 3, -2))
sketch6.addConstraint(Sketcher.Constraint("Symmetric", 1, 3, 4, 3, -2))
sketch6.addConstraint(Sketcher.Constraint("Symmetric", 0, 3, 5, 3, -2))
sketch6.addConstraint(Sketcher.Constraint("Horizontal", 0, 3, 1, 3))
sketch6.addConstraint(Sketcher.Constraint("Horizontal", 1, 3, 2, 3))
sketch6.addConstraint(Sketcher.Constraint("DistanceX", -1, 1, 0, 3, Q("15 mm")))
sketch6.addConstraint(Sketcher.Constraint("DistanceX", -1, 1, 1, 3, Q("9 mm")))
sketch6.addConstraint(Sketcher.Constraint("DistanceX", -1, 1, 2, 3, Q("3 mm")))
sketch6.addConstraint(Sketcher.Constraint("Diameter", 0, Q("3.725232 mm")))
sketch6.addConstraint(Sketcher.Constraint("DistanceY", -1, 1, 0, 3, Q("43.25 mm")))
pad4 = body.newObject("PartDesign::Pad", "Pad003")
pad4.Profile = sketch6
pad4.Length = 12

# Sketch on XZ plane
sketch7 = body.newObject("Sketcher::SketchObject", "Sketch006")
sketch7.AttachmentSupport = (doc.getObject("XZ_Plane"), [""])
sketch7.MapMode = "FlatFace"
sketch7.AttachmentOffset = App.Placement(Vector(0, 0, -1), App.Rotation())
sketch7.addGeometry(Part.Circle(Vector(15, 43.2, 0), Vector(0, 0, 1), 1), False)
sketch7.addGeometry(Part.Circle(Vector(9, 43.2, 0), Vector(0, 0, 1), 1), False)
sketch7.addGeometry(Part.Circle(Vector(3, 43.2, 0), Vector(0, 0, 1), 1), False)
sketch7.addGeometry(Part.Circle(Vector(-3, 43.2, 0), Vector(0, 0, 1), 1), False)
sketch7.addGeometry(Part.Circle(Vector(-9, 43.2, 0), Vector(0, 0, 1), 1), False)
sketch7.addGeometry(Part.Circle(Vector(-15, 43.2, 0), Vector(0, 0, 1), 1), False)
sketch7.addConstraint(Sketcher.Constraint("Equal", 0, 1))
sketch7.addConstraint(Sketcher.Constraint("Equal", 1, 2))
sketch7.addConstraint(Sketcher.Constraint("Equal", 2, 3))
sketch7.addConstraint(Sketcher.Constraint("Equal", 3, 4))
sketch7.addConstraint(Sketcher.Constraint("Equal", 4, 5))
sketch7.addConstraint(Sketcher.Constraint("Symmetric", 2, 3, 3, 3, -2))
sketch7.addConstraint(Sketcher.Constraint("Symmetric", 1, 3, 4, 3, -2))
sketch7.addConstraint(Sketcher.Constraint("Symmetric", 0, 3, 5, 3, -2))
sketch7.addConstraint(Sketcher.Constraint("Horizontal", 0, 3, 1, 3))
sketch7.addConstraint(Sketcher.Constraint("Horizontal", 1, 3, 2, 3))
sketch7.addConstraint(Sketcher.Constraint("DistanceX", -1, 1, 0, 3, Q("15 mm")))
sketch7.addConstraint(Sketcher.Constraint("DistanceX", -1, 1, 1, 3, Q("9 mm")))
sketch7.addConstraint(Sketcher.Constraint("DistanceX", -1, 1, 2, 3, Q("3 mm")))
sketch7.addConstraint(Sketcher.Constraint("DistanceY", -1, 1, 0, 3, Q("43.25 mm")))
sketch7.addConstraint(Sketcher.Constraint("Diameter", 0, Q("1.990697 mm")))
pad5 = body.newObject("PartDesign::Pad", "Pad004")
pad5.Profile = sketch7
pad5.Length = 12
pad5.Reversed = True
body2 = doc.addObject("PartDesign::Body", "Body001")

# Sketch on XZ plane
sketch8 = body2.newObject("Sketcher::SketchObject", "Sketch007")
sketch8.AttachmentSupport = (doc.getObject("XZ_Plane001"), [""])
sketch8.MapMode = "FlatFace"
sketch8.AttachmentOffset = App.Placement(Vector(0, 0, -47.921729), App.Rotation())
add_polygon(sketch8, [(53, 41.3), (53, 40), (-53, 40), (-53, 41.3), (-37.7, 41.3), (-17.5, 45.5), (17.5, 45.5), (37.7, 41.3)])  # lines 0-7
sketch8.addConstraint(Sketcher.Constraint("Vertical", 0))
sketch8.addConstraint(Sketcher.Constraint("Horizontal", 1))
sketch8.addConstraint(Sketcher.Constraint("Vertical", 2))
sketch8.addConstraint(Sketcher.Constraint("Horizontal", 3))
sketch8.addConstraint(Sketcher.Constraint("Horizontal", 5))
sketch8.addConstraint(Sketcher.Constraint("Horizontal", 7))
sketch8.addConstraint(Sketcher.Constraint("Symmetric", 3, 2, 6, 2, -2))
sketch8.addConstraint(Sketcher.Constraint("Equal", 3, 7))
sketch8.addConstraint(Sketcher.Constraint("Equal", 4, 6))
sketch8.addConstraint(Sketcher.Constraint("DistanceX", 5, 1, 5, 2, Q("35 mm")))
sketch8.addConstraint(Sketcher.Constraint("DistanceY", -1, 1, 0, 2, Q("40 mm")))
sketch8.addConstraint(Sketcher.Constraint("DistanceY", -1, 1, 4, 2, Q("45.5 mm")))
sketch8.addConstraint(Sketcher.Constraint("DistanceX", 1, 2, 1, 1, Q("105.936387 mm")))
sketch8.addConstraint(Sketcher.Constraint("DistanceX", 3, 1, 3, 2, Q("15.301364 mm")))
sketch8.addConstraint(Sketcher.Constraint("DistanceY", 0, 2, 0, 1, Q("1.296407 mm")))
pad6 = body2.newObject("PartDesign::Pad", "Pad005")
pad6.Profile = sketch8
pad6.Length = 15

# Sketch on XY plane
sketch9 = body2.newObject("Sketcher::SketchObject", "Sketch008")
sketch9.AttachmentSupport = (doc.getObject("XY_Plane001"), [""])
sketch9.MapMode = "FlatFace"
sketch9.AttachmentOffset = App.Placement(Vector(0, 0, 45.5), App.Rotation())
add_polygon(sketch9, [(-37.7, 41), (-37.7, 36.1), (37.7, 36.1), (37.7, 41)])  # lines 0-3
sketch9.addConstraint(Sketcher.Constraint("Vertical", 0))
sketch9.addConstraint(Sketcher.Constraint("Horizontal", 1))
sketch9.addConstraint(Sketcher.Constraint("Vertical", 2))
sketch9.addConstraint(Sketcher.Constraint("Horizontal", 3))
sketch9.addConstraint(Sketcher.Constraint("DistanceX", 1, 1, 1, 2, Q("75.33366 mm")))
sketch9.addConstraint(Sketcher.Constraint("DistanceY", 0, 2, 0, 1, Q("4.899461 mm")))
sketch9.addConstraint(Sketcher.Constraint("DistanceX", 0, 2, -1, 1, Q("37.66683 mm")))
sketch9.addConstraint(Sketcher.Constraint("DistanceY", -1, 1, 0, 2, Q("36.054933 mm")))
pocket3 = body2.newObject("PartDesign::Pocket", "Pocket002")
pocket3.Profile = sketch9
pocket3.Length = 5.5

# Sketch on XZ plane
sketch10 = body2.newObject("Sketcher::SketchObject", "Sketch009")
sketch10.AttachmentSupport = (doc.getObject("XZ_Plane001"), [""])
sketch10.MapMode = "FlatFace"
sketch10.AttachmentOffset = App.Placement(Vector(0, 0, -32.921729), App.Rotation())
sketch10.addGeometry(Part.Circle(Vector(15, 43.2, 0), Vector(0, 0, 1), 0.5), False)
sketch10.addGeometry(Part.Circle(Vector(9, 43.2, 0), Vector(0, 0, 1), 0.5), False)
sketch10.addGeometry(Part.Circle(Vector(3, 43.2, 0), Vector(0, 0, 1), 0.5), False)
sketch10.addGeometry(Part.Circle(Vector(-3, 43.2, 0), Vector(0, 0, 1), 0.5), False)
sketch10.addGeometry(Part.Circle(Vector(-9, 43.2, 0), Vector(0, 0, 1), 0.5), False)
sketch10.addGeometry(Part.Circle(Vector(-15, 43.2, 0), Vector(0, 0, 1), 0.5), False)
sketch10.addConstraint(Sketcher.Constraint("Equal", 0, 1))
sketch10.addConstraint(Sketcher.Constraint("Equal", 1, 2))
sketch10.addConstraint(Sketcher.Constraint("Equal", 2, 3))
sketch10.addConstraint(Sketcher.Constraint("Equal", 3, 4))
sketch10.addConstraint(Sketcher.Constraint("Equal", 4, 5))
sketch10.addConstraint(Sketcher.Constraint("Symmetric", 2, 3, 3, 3, -2))
sketch10.addConstraint(Sketcher.Constraint("Symmetric", 1, 3, 4, 3, -2))
sketch10.addConstraint(Sketcher.Constraint("Symmetric", 0, 3, 5, 3, -2))
sketch10.addConstraint(Sketcher.Constraint("Horizontal", 0, 3, 1, 3))
sketch10.addConstraint(Sketcher.Constraint("Horizontal", 1, 3, 2, 3))
sketch10.addConstraint(Sketcher.Constraint("DistanceX", -1, 1, 0, 3, Q("15 mm")))
sketch10.addConstraint(Sketcher.Constraint("DistanceX", -1, 1, 1, 3, Q("9 mm")))
sketch10.addConstraint(Sketcher.Constraint("DistanceX", -1, 1, 2, 3, Q("3 mm")))
sketch10.addConstraint(Sketcher.Constraint("DistanceY", -1, 1, 0, 3, Q("43.25 mm")))
sketch10.addConstraint(Sketcher.Constraint("Diameter", 0, Q("1.061964 mm")))
pocket4 = body2.newObject("PartDesign::Pocket", "Pocket003")
pocket4.Profile = sketch10
pocket4.Length = 6

doc.recompute()
